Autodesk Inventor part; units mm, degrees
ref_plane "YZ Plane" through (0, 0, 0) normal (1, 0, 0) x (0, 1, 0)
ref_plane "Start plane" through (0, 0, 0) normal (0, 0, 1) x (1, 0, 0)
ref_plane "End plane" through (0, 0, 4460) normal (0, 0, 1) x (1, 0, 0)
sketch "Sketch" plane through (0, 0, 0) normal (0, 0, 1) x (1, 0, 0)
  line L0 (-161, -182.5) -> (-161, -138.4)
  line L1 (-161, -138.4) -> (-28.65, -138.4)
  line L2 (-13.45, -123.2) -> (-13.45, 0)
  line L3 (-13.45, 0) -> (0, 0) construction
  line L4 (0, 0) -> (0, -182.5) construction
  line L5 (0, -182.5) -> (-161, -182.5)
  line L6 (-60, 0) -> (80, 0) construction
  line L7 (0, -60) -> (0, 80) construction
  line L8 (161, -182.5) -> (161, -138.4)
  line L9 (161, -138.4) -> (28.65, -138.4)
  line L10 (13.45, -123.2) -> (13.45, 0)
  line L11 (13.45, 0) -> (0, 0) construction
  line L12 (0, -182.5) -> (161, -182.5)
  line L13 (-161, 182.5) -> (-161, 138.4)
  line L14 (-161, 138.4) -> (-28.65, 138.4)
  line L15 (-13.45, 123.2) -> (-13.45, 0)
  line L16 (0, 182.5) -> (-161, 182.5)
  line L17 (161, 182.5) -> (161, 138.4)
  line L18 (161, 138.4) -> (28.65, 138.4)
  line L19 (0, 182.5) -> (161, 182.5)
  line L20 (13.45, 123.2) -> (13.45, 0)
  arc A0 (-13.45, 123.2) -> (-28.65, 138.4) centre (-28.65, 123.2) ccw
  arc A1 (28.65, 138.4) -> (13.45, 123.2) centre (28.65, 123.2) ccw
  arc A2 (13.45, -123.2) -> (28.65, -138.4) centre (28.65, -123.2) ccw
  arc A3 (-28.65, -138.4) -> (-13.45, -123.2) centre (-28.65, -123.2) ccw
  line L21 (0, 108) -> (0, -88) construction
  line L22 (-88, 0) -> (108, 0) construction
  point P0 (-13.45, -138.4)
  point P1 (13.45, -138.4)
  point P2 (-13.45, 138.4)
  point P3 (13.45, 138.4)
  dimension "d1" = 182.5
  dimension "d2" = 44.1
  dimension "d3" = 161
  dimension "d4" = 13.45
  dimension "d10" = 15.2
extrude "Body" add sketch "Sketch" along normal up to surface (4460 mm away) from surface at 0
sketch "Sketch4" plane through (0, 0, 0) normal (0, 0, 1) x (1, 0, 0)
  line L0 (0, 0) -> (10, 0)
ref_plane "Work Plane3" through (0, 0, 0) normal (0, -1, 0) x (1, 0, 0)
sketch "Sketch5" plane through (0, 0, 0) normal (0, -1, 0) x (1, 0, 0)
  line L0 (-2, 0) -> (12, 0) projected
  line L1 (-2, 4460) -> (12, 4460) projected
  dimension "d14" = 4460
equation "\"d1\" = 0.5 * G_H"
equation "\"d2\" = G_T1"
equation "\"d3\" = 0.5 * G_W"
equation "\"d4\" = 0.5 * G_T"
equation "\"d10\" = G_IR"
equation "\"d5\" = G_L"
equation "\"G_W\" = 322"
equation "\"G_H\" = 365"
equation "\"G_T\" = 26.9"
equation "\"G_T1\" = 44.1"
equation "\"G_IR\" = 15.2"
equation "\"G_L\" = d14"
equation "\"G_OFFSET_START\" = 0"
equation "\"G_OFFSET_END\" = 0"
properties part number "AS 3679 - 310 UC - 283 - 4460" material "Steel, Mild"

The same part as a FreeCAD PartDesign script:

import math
import FreeCAD as App
import Part
import Sketcher

V = App.Vector

doc = App.newDocument("Part")
body = doc.addObject("PartDesign::Body", "Body")

# Sketch on XY plane
sketch1 = body.newObject("Sketcher::SketchObject", "Sketch")
sketch1.AttachmentSupport = (doc.getObject("XY_Plane"), [""])
sketch1.MapMode = "FlatFace"
sketch1.addGeometry(Part.LineSegment(V(-161, -138, 0), V(-161, -182, 0)), False)
sketch1.addGeometry(Part.LineSegment(V(-161, -182, 0), V(161, -182, 0)), False)
sketch1.addGeometry(Part.LineSegment(V(161, -182, 0), V(161, -138, 0)), False)
sketch1.addGeometry(Part.LineSegment(V(161, -138, 0), V(29, -138, 0)), False)
sketch1.addGeometry(Part.ArcOfCircle(Part.Circle(V(29, -123, 0), V(0, 0, 1), 15), math.radians(180), math.radians(270)), False)
sketch1.addGeometry(Part.LineSegment(V(13, -123, 0), V(13, 123, 0)), False)
sketch1.addGeometry(Part.ArcOfCircle(Part.Circle(V(29, 123, 0), V(0, 0, 1), 15), math.radians(90), math.radians(180)), False)
sketch1.addGeometry(Part.LineSegment(V(29, 138, 0), V(161, 138, 0)), False)
sketch1.addGeometry(Part.LineSegment(V(161, 138, 0), V(161, 182, 0)), False)
sketch1.addGeometry(Part.LineSegment(V(161, 182, 0), V(-161, 182, 0)), False)
sketch1.addGeometry(Part.LineSegment(V(-161, 182, 0), V(-161, 138, 0)), False)
sketch1.addGeometry(Part.LineSegment(V(-161, 138, 0), V(-29, 138, 0)), False)
sketch1.addGeometry(Part.ArcOfCircle(Part.Circle(V(-29, 123, 0), V(0, 0, 1), 15), math.radians(0), math.radians(90)), False)
sketch1.addGeometry(Part.LineSegment(V(-13, 123, 0), V(-13, -123, 0)), False)
sketch1.addGeometry(Part.ArcOfCircle(Part.Circle(V(-29, -123, 0), V(0, 0, 1), 15), math.radians(-90), math.radians(0)), False)
sketch1.addGeometry(Part.LineSegment(V(-29, -138, 0), V(-161, -138, 0)), False)
sketch1.addConstraint(Sketcher.Constraint("Coincident", 0, 2, 1, 1))
sketch1.addConstraint(Sketcher.Constraint("Coincident", 1, 2, 2, 1))
sketch1.addConstraint(Sketcher.Constraint("Coincident", 2, 2, 3, 1))
sketch1.addConstraint(Sketcher.Constraint("Tangent", 3, 2, 4, 2))
sketch1.addConstraint(Sketcher.Constraint("Tangent", 4, 1, 5, 1))
sketch1.addConstraint(Sketcher.Constraint("Tangent", 5, 2, 6, 2))
sketch1.addConstraint(Sketcher.Constraint("Tangent", 6, 1, 7, 1))
sketch1.addConstraint(Sketcher.Constraint("Coincident", 7, 2, 8, 1))
sketch1.addConstraint(Sketcher.Constraint("Coincident", 8, 2, 9, 1))
sketch1.addConstraint(Sketcher.Constraint("Coincident", 9, 2, 10, 1))
sketch1.addConstraint(Sketcher.Constraint("Coincident", 10, 2, 11, 1))
sketch1.addConstraint(Sketcher.Constraint("Tangent", 11, 2, 12, 2))
sketch1.addConstraint(Sketcher.Constraint("Tangent", 12, 1, 13, 1))
sketch1.addConstraint(Sketcher.Constraint("Tangent", 13, 2, 14, 2))
sketch1.addConstraint(Sketcher.Constraint("Tangent", 14, 1, 15, 1))
sketch1.addConstraint(Sketcher.Constraint("Coincident", 15, 2, 0, 1))
sketch1.addConstraint(Sketcher.Constraint("Vertical", 0))
sketch1.addConstraint(Sketcher.Constraint("Horizontal", 1))
sketch1.addConstraint(Sketcher.Constraint("Vertical", 2))
sketch1.addConstraint(Sketcher.Constraint("Horizontal", 3))
sketch1.addConstraint(Sketcher.Constraint("Vertical", 5))
sketch1.addConstraint(Sketcher.Constraint("Horizontal", 7))
sketch1.addConstraint(Sketcher.Constraint("Vertical", 8))
sketch1.addConstraint(Sketcher.Constraint("Horizontal", 9))
sketch1.addConstraint(Sketcher.Constraint("Vertical", 10))
sketch1.addConstraint(Sketcher.Constraint("Horizontal", 11))
sketch1.addConstraint(Sketcher.Constraint("Vertical", 13))
sketch1.addConstraint(Sketcher.Constraint("Horizontal", 15))
sketch1.addConstraint(Sketcher.Constraint("Equal", 4, 6))
sketch1.addConstraint(Sketcher.Constraint("Equal", 6, 12))
sketch1.addConstraint(Sketcher.Constraint("Equal", 12, 14))
sketch1.addConstraint(Sketcher.Constraint("Symmetric", 4, 3, 12, 3, -1, 1))
sketch1.addConstraint(Sketcher.Constraint("Symmetric", 0, 2, 8, 2, -1, 1))
sketch1.addConstraint(Sketcher.Constraint("Symmetric", 7, 2, 10, 2, -2))
sketch1.addConstraint(Sketcher.Constraint("Symmetric", 2, 2, 15, 2, -2))
sketch1.addConstraint(Sketcher.Constraint("Radius", 4, 15.2))
sketch1.addConstraint(Sketcher.Constraint("DistanceY", 0, 2, 0, 1, 44.1))
sketch1.addConstraint(Sketcher.Constraint("DistanceX", 0, 2, -1, 1, 161.0))
sketch1.addConstraint(Sketcher.Constraint("DistanceY", 0, 2, -1, 1, 182.5))
sketch1.addConstraint(Sketcher.Constraint("DistanceX", -1, 1, 4, 1, 13.45))
pad1 = body.newObject("PartDesign::Pad", "Pad")
pad1.Profile = sketch1
pad1.Length = 4460

doc.recompute()
